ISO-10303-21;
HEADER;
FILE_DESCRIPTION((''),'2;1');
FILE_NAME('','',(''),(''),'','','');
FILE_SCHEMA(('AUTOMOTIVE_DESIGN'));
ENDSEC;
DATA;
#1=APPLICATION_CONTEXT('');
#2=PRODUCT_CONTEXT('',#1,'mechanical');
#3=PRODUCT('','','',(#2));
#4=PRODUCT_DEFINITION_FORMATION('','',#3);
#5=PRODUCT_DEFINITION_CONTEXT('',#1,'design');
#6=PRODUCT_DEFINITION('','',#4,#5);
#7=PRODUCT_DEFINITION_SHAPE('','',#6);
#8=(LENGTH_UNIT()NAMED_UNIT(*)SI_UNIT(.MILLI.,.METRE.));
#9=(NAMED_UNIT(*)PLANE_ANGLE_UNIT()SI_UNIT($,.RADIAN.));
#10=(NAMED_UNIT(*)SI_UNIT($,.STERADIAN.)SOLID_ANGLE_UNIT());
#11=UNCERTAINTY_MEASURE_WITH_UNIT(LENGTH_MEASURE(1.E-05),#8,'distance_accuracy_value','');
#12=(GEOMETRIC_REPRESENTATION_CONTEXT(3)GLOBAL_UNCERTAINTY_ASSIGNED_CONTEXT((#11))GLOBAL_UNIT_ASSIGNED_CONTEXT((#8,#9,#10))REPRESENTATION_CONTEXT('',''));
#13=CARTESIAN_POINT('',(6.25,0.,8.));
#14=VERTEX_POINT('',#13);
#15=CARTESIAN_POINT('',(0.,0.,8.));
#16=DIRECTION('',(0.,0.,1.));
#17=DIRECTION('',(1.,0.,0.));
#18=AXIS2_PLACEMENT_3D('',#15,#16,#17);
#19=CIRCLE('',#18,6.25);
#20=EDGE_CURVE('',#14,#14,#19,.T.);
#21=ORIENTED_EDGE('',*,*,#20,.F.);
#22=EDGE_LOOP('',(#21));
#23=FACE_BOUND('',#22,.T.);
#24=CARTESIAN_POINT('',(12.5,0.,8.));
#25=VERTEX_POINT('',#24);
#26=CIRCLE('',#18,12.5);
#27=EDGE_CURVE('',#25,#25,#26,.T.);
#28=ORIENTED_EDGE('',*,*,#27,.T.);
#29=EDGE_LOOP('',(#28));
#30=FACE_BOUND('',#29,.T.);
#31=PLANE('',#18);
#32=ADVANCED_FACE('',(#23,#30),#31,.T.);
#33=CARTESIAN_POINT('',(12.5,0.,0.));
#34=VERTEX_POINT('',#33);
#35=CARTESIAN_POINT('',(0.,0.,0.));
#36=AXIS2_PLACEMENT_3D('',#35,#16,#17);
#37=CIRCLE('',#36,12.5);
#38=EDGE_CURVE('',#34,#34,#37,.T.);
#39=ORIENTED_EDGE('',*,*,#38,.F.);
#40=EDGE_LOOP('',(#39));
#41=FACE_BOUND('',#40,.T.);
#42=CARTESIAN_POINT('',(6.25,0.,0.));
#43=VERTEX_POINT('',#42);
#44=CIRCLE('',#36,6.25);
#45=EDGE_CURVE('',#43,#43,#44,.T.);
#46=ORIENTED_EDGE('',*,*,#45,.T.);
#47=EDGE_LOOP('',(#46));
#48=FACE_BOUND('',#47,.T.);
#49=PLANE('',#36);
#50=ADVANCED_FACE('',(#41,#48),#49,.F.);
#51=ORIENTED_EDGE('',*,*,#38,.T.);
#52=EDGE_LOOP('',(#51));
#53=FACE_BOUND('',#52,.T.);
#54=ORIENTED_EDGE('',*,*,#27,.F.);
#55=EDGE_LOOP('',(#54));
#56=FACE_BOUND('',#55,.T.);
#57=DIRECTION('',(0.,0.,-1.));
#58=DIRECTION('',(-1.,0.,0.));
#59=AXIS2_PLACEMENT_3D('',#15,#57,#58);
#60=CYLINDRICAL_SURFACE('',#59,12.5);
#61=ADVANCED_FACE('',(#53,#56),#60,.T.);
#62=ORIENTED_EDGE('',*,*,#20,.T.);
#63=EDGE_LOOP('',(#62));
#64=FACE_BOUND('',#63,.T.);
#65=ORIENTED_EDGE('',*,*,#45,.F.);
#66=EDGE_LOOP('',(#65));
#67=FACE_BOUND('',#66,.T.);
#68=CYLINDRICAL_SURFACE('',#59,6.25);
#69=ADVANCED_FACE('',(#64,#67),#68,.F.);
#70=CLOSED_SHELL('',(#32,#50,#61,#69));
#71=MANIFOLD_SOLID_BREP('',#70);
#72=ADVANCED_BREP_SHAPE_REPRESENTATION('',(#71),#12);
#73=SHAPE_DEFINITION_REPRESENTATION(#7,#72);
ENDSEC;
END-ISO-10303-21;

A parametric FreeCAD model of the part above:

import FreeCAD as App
import Part
import Sketcher

V = App.Vector

doc = App.newDocument("Part")
body = doc.addObject("PartDesign::Body", "Body")

sketch1 = body.newObject("Sketcher::SketchObject", "Sketch")
sketch1.AttachmentSupport = (doc.getObject("XY_Plane"), [""])
sketch1.MapMode = "FlatFace"
sketch1.addGeometry([
    Part.Circle(V(0, 0, 0), V(0, 0, 1), 12.5),
    Part.Circle(V(0, 0, 0), V(0, 0, 1), 6.25),
], False)
sketch1.addConstraint([
    Sketcher.Constraint("Coincident", 0, 3, -1, 1),
    Sketcher.Constraint("Coincident", 1, 3, -1, 1),
    Sketcher.Constraint("Diameter", 0, 25.0),
    Sketcher.Constraint("Diameter", 1, 12.5),
])
pad1 = body.newObject("PartDesign::Pad", "Pad")
pad1.Profile = sketch1
pad1.Length = 8

doc.recompute()
